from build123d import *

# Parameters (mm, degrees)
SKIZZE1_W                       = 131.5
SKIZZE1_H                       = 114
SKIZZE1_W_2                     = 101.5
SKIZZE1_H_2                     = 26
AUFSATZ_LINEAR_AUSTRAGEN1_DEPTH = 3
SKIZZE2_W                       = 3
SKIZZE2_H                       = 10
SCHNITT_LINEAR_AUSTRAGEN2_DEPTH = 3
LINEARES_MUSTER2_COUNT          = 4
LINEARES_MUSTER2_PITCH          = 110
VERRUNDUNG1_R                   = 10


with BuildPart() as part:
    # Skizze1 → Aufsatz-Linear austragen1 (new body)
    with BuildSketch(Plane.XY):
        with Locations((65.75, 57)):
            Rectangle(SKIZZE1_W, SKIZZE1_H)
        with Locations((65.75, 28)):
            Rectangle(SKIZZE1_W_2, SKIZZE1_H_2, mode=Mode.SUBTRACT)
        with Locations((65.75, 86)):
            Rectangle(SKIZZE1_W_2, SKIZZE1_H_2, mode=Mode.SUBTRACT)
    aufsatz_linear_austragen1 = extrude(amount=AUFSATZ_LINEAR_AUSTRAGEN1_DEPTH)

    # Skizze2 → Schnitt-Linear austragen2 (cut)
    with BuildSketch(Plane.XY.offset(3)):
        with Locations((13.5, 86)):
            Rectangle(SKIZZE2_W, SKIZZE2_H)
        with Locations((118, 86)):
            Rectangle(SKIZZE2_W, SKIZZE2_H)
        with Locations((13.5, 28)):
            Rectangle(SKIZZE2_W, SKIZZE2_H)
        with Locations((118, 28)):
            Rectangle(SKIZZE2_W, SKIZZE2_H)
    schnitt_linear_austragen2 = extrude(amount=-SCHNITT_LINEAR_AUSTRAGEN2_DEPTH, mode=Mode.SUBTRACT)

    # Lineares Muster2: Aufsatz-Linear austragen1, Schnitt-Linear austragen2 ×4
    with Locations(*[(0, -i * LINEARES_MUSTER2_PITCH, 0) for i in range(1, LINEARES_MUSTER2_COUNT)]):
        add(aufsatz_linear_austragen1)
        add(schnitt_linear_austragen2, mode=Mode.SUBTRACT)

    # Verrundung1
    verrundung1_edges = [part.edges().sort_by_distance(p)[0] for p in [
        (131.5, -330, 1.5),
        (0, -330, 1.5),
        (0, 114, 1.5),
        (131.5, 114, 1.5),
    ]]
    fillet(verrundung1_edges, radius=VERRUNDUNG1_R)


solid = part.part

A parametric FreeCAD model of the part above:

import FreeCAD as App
import Part
import Sketcher
Q = App.Units.Quantity


def edges_at(feature, points):
    """Names of the edges that pass closest to the given points."""
    edges = feature.Shape.Edges
    near = lambda p: min(range(len(edges)), key=lambda i: edges[i].distToShape(Part.Vertex(*p))[0])
    return sorted({f"Edge{near(p) + 1}" for p in points})


def add_polygon(sketch, points):
    """Adds a closed chain of lines whose ends are joined by coincident constraints."""
    first, n = sketch.GeometryCount, len(points)
    for a, b in zip(points, points[1:] + points[:1]):
        sketch.addGeometry(Part.LineSegment(App.Vector(*a, 0), App.Vector(*b, 0)), False)
    for i in range(n):
        sketch.addConstraint(Sketcher.Constraint("Coincident", first + i, 2, first + (i + 1) % n, 1))

doc = App.newDocument("Part")
params = doc.addObject("Spreadsheet::Sheet", "Params")
for row, (alias, value) in enumerate([
    ("sketch1_height", "114 mm"),
    ("sketch1_height2", "26 mm"),
    ("sketch1_width", "131.5 mm"),
    ("sketch1_width2", "101.5 mm"),
    ("pad1_length", "3 mm"),
    ("sketch2_width", "3 mm"),
    ("sketch2_height", "10 mm"),
    ("pocket1_length", "3 mm"),
    ("linearpattern_pitch", "110 mm"),
    ("fillet_radius", "10 mm"),
], start=1):
    params.set(f"A{row}", alias)
    params.set(f"B{row}", "=" + value)
    params.setAlias(f"B{row}", alias)

body = doc.addObject("PartDesign::Body", "Body")

# Sketch on XY plane
sketch1 = doc.addObject("Sketcher::SketchObject", "Sketch")
body.addObject(sketch1)
sketch1.AttachmentSupport = (doc.XY_Plane, [""])
sketch1.MapMode = "FlatFace"
add_polygon(sketch1, [(0, 114), (0, 0), (132, 0), (132, 114)])  # lines 0-3
add_polygon(sketch1, [(116, 15), (15, 15), (15, 41), (116, 41)])  # lines 4-7
add_polygon(sketch1, [(116, 73), (15, 73), (15, 99), (116, 99)])  # lines 8-11
sketch1.addConstraint(Sketcher.Constraint("Vertical", 0))
sketch1.addConstraint(Sketcher.Constraint("Horizontal", 1))
sketch1.addConstraint(Sketcher.Constraint("Vertical", 2))
sketch1.addConstraint(Sketcher.Constraint("Horizontal", 3))
sketch1.addConstraint(Sketcher.Constraint("Horizontal", 4))
sketch1.addConstraint(Sketcher.Constraint("Vertical", 5))
sketch1.addConstraint(Sketcher.Constraint("Horizontal", 6))
sketch1.addConstraint(Sketcher.Constraint("Vertical", 7))
sketch1.addConstraint(Sketcher.Constraint("Horizontal", 8))
sketch1.addConstraint(Sketcher.Constraint("Vertical", 9))
sketch1.addConstraint(Sketcher.Constraint("Horizontal", 10))
sketch1.addConstraint(Sketcher.Constraint("Vertical", 11))
sketch1.addConstraint(Sketcher.Constraint("Coincident", 0, 2, -1, 1))
sketch1.addConstraint(Sketcher.Constraint("Vertical", 5, 2, 8, 2))
sketch1.addConstraint(Sketcher.Constraint("Vertical", 7, 2, 10, 2))
sketch1.addConstraint(Sketcher.Constraint("Equal", 7, 9))
sketch1.addConstraint(Sketcher.Constraint("DistanceY", 0, 2, 0, 1, Q("114 mm")))
sketch1.addConstraint(Sketcher.Constraint("DistanceY", 5, 1, 5, 2, Q("26 mm")))
sketch1.addConstraint(Sketcher.Constraint("DistanceX", 1, 1, 1, 2, Q("131.5 mm")))
sketch1.addConstraint(Sketcher.Constraint("DistanceX", 4, 2, 4, 1, Q("101.5 mm")))
sketch1.addConstraint(Sketcher.Constraint("DistanceX", -1, 1, 4, 2, Q("15 mm")))
sketch1.addConstraint(Sketcher.Constraint("DistanceY", -1, 1, 4, 2, Q("15 mm")))
sketch1.addConstraint(Sketcher.Constraint("DistanceY", -1, 1, 8, 2, Q("73 mm")))
sketch1.setExpression("Constraints[28]", "Params.sketch1_height")
sketch1.setExpression("Constraints[29]", "Params.sketch1_height2")
sketch1.setExpression("Constraints[30]", "Params.sketch1_width")
sketch1.setExpression("Constraints[31]", "Params.sketch1_width2")
pad1 = doc.addObject("PartDesign::Pad", "Pad")
body.addObject(pad1)
pad1.Profile = sketch1
pad1.setExpression("Length", "Params.pad1_length")

# Sketch on XY plane
sketch2 = doc.addObject("Sketcher::SketchObject", "Sketch001")
body.addObject(sketch2)
sketch2.AttachmentSupport = (doc.XY_Plane, [""])
sketch2.MapMode = "FlatFace"
sketch2.AttachmentOffset = App.Placement(App.Vector(0, 0, 3), App.Rotation())
add_polygon(sketch2, [(12, 91), (12, 81), (15, 81), (15, 91)])  # lines 0-3
add_polygon(sketch2, [(116.5, 91), (116.5, 81), (119.5, 81), (119.5, 91)])  # lines 4-7
add_polygon(sketch2, [(12, 33), (12, 23), (15, 23), (15, 33)])  # lines 8-11
add_polygon(sketch2, [(116.5, 33), (116.5, 23), (119.5, 23), (119.5, 33)])  # lines 12-15
sketch2.addConstraint(Sketcher.Constraint("Vertical", 0))
sketch2.addConstraint(Sketcher.Constraint("Horizontal", 1))
sketch2.addConstraint(Sketcher.Constraint("Vertical", 2))
sketch2.addConstraint(Sketcher.Constraint("Horizontal", 3))
sketch2.addConstraint(Sketcher.Constraint("Vertical", 4))
sketch2.addConstraint(Sketcher.Constraint("Horizontal", 5))
sketch2.addConstraint(Sketcher.Constraint("Vertical", 6))
sketch2.addConstraint(Sketcher.Constraint("Horizontal", 7))
sketch2.addConstraint(Sketcher.Constraint("Vertical", 8))
sketch2.addConstraint(Sketcher.Constraint("Horizontal", 9))
sketch2.addConstraint(Sketcher.Constraint("Vertical", 10))
sketch2.addConstraint(Sketcher.Constraint("Horizontal", 11))
sketch2.addConstraint(Sketcher.Constraint("Vertical", 12))
sketch2.addConstraint(Sketcher.Constraint("Horizontal", 13))
sketch2.addConstraint(Sketcher.Constraint("Vertical", 14))
sketch2.addConstraint(Sketcher.Constraint("Horizontal", 15))
sketch2.addConstraint(Sketcher.Constraint("Horizontal", 1, 2, 4, 2))
sketch2.addConstraint(Sketcher.Constraint("Horizontal", 3, 2, 6, 2))
sketch2.addConstraint(Sketcher.Constraint("Horizontal", 9, 2, 12, 2))
sketch2.addConstraint(Sketcher.Constraint("Horizontal", 11, 2, 14, 2))
sketch2.addConstraint(Sketcher.Constraint("Vertical", 3, 2, 8, 2))
sketch2.addConstraint(Sketcher.Constraint("Vertical", 2, 2, 9, 2))
sketch2.addConstraint(Sketcher.Constraint("Vertical", 7, 2, 12, 2))
sketch2.addConstraint(Sketcher.Constraint("Vertical", 6, 2, 13, 2))
sketch2.addConstraint(Sketcher.Constraint("Equal", 3, 5))
sketch2.addConstraint(Sketcher.Constraint("Equal", 6, 8))
sketch2.addConstraint(Sketcher.Constraint("DistanceX", 1, 1, 1, 2, Q("3 mm")))
sketch2.addConstraint(Sketcher.Constraint("DistanceY", 0, 2, 0, 1, Q("10 mm")))
sketch2.addConstraint(Sketcher.Constraint("DistanceX", -1, 1, 0, 2, Q("12 mm")))
sketch2.addConstraint(Sketcher.Constraint("DistanceY", -1, 1, 0, 2, Q("81 mm")))
sketch2.addConstraint(Sketcher.Constraint("DistanceY", -1, 1, 8, 2, Q("23 mm")))
sketch2.addConstraint(Sketcher.Constraint("DistanceX", -1, 1, 4, 2, Q("116.5 mm")))
sketch2.setExpression("Constraints[42]", "Params.sketch2_width")
sketch2.setExpression("Constraints[43]", "Params.sketch2_height")
pocket1 = doc.addObject("PartDesign::Pocket", "Pocket")
body.addObject(pocket1)
pocket1.Profile = sketch2
pocket1.setExpression("Length", "Params.pocket1_length")
doc.recompute()

linearpattern = doc.addObject("PartDesign::LinearPattern", "LinearPattern")
body.addObject(linearpattern)
linearpattern.Originals = [pad1, pocket1]
linearpattern.Direction = (doc.Y_Axis, [""])
linearpattern.Mode = "offset"
linearpattern.setExpression("Offset", "Params.linearpattern_pitch")
linearpattern.Occurrences = 4
linearpattern.Reversed = True
body.Tip = linearpattern
doc.recompute()

fillet = doc.addObject("PartDesign::Fillet", "Fillet")
body.addObject(fillet)
fillet.Base = (linearpattern, edges_at(linearpattern, [
    (131.5, -330, 1.5),
    (0, -330, 1.5),
    (0, 114, 1.5),
    (131.5, 114, 1.5),
]))
fillet.setExpression("Radius", "Params.fillet_radius")

doc.recompute()
